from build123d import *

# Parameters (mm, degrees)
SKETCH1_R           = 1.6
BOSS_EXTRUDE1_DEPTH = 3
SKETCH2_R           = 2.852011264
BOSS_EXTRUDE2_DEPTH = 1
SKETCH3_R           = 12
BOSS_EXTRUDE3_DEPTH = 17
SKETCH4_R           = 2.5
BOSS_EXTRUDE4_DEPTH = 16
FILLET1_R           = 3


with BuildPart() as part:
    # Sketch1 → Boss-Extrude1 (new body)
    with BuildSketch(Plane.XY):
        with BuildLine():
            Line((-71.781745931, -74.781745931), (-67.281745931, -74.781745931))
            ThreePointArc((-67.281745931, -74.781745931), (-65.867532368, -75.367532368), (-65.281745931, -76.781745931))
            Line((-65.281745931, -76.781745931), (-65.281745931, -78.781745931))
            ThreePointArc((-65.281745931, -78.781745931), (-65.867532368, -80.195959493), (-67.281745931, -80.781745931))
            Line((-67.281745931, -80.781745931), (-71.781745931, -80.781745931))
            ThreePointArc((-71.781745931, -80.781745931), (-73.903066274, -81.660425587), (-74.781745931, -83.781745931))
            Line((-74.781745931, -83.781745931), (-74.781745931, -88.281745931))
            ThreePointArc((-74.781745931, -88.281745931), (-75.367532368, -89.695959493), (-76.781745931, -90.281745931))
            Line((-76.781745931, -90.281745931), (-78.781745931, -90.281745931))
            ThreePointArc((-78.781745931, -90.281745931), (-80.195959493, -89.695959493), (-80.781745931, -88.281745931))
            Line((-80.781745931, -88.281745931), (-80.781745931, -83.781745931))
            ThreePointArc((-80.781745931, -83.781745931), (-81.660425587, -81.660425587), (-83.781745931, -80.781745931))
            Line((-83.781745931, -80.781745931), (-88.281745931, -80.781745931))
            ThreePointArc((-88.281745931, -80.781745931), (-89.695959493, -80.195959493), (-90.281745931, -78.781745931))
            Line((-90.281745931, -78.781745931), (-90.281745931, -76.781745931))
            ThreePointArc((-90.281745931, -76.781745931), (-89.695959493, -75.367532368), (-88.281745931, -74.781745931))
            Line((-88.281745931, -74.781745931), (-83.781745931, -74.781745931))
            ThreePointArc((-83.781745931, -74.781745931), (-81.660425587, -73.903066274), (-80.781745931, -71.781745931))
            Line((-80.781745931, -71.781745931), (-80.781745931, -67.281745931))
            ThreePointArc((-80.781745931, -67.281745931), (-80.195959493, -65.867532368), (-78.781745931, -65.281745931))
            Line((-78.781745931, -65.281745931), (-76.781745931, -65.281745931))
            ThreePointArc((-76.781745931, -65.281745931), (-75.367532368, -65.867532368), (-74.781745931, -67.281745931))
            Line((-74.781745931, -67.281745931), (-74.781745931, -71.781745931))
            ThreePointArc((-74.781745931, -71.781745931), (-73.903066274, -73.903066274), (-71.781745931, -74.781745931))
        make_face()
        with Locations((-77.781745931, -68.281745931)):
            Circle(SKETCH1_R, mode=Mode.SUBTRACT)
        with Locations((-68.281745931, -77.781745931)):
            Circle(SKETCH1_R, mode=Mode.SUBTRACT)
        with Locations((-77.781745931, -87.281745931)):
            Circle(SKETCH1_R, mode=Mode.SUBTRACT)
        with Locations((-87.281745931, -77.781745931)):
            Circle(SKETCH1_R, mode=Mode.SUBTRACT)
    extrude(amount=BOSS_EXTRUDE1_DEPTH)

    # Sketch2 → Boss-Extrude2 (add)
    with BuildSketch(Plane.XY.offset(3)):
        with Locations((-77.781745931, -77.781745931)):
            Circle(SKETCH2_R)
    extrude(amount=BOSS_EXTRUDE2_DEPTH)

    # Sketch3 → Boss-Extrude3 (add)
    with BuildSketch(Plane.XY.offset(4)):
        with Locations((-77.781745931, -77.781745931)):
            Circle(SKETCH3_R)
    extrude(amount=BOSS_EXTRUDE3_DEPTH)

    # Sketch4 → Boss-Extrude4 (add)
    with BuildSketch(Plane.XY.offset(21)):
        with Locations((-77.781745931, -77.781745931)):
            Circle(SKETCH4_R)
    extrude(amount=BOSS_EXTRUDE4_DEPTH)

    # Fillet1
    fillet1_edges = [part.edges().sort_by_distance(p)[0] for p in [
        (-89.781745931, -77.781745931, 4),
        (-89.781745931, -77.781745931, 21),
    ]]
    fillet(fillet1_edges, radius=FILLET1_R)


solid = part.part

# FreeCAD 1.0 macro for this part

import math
import FreeCAD as App
import Part
import Sketcher
Q = App.Units.Quantity


def edges_at(feature, points):
    """Names of the edges that pass closest to the given points."""
    edges = feature.Shape.Edges
    near = lambda p: min(range(len(edges)), key=lambda i: edges[i].distToShape(Part.Vertex(*p))[0])
    return sorted({f"Edge{near(p) + 1}" for p in points})

doc = App.newDocument("Part")
params = doc.addObject("Spreadsheet::Sheet", "Params")
for row, (alias, value) in enumerate([
    ("sketch1_radius", "3 mm"),
    ("sketch1_radius2", "2 mm"),
    ("sketch1_diameter", "3.2 mm"),
    ("sketch1_width", "2 mm"),
    ("sketch1_width2", "4.5 mm"),
    ("pad1_length", "3 mm"),
    ("pad2_length", "1 mm"),
    ("sketch3_diameter", "24 mm"),
    ("pad3_length", "17 mm"),
    ("sketch4_diameter", "5 mm"),
    ("pad4_length", "16 mm"),
    ("fillet_radius", "3 mm"),
], start=1):
    params.set(f"A{row}", alias)
    params.set(f"B{row}", "=" + value)
    params.setAlias(f"B{row}", alias)

body = doc.addObject("PartDesign::Body", "Body")

sketch1 = body.newObject("Sketcher::SketchObject", "Sketch")
sketch1.AttachmentSupport = (doc.getObject("XY_Plane"), [""])
sketch1.MapMode = "FlatFace"
sketch1.addGeometry([
    Part.LineSegment(App.Vector(-67.3, -74.8, 0), App.Vector(-71.8, -74.8, 0)),
    Part.ArcOfCircle(Part.Circle(App.Vector(-71.8, -71.8, 0), App.Vector(0, 0, 1), 3), math.radians(-180), math.radians(-90)),
    Part.LineSegment(App.Vector(-74.8, -71.8, 0), App.Vector(-74.8, -67.3, 0)),
    Part.ArcOfCircle(Part.Circle(App.Vector(-76.8, -67.3, 0), App.Vector(0, 0, 1), 2), math.radians(0), math.radians(90)),
    Part.LineSegment(App.Vector(-76.8, -65.3, 0), App.Vector(-78.8, -65.3, 0)),
    Part.ArcOfCircle(Part.Circle(App.Vector(-78.8, -67.3, 0), App.Vector(0, 0, 1), 2), math.radians(90), math.radians(180)),
    Part.LineSegment(App.Vector(-80.8, -67.3, 0), App.Vector(-80.8, -71.8, 0)),
    Part.ArcOfCircle(Part.Circle(App.Vector(-83.8, -71.8, 0), App.Vector(0, 0, 1), 3), math.radians(-90), math.radians(0)),
    Part.LineSegment(App.Vector(-83.8, -74.8, 0), App.Vector(-88.3, -74.8, 0)),
    Part.ArcOfCircle(Part.Circle(App.Vector(-88.3, -76.8, 0), App.Vector(0, 0, 1), 2), math.radians(90), math.radians(180)),
    Part.LineSegment(App.Vector(-90.3, -76.8, 0), App.Vector(-90.3, -78.8, 0)),
    Part.ArcOfCircle(Part.Circle(App.Vector(-88.3, -78.8, 0), App.Vector(0, 0, 1), 2), math.radians(-180), math.radians(-90)),
    Part.LineSegment(App.Vector(-88.3, -80.8, 0), App.Vector(-83.8, -80.8, 0)),
    Part.ArcOfCircle(Part.Circle(App.Vector(-83.8, -83.8, 0), App.Vector(0, 0, 1), 3), math.radians(0), math.radians(90)),
    Part.LineSegment(App.Vector(-80.8, -83.8, 0), App.Vector(-80.8, -88.3, 0)),
    Part.ArcOfCircle(Part.Circle(App.Vector(-78.8, -88.3, 0), App.Vector(0, 0, 1), 2), math.radians(-180), math.radians(-90)),
    Part.LineSegment(App.Vector(-78.8, -90.3, 0), App.Vector(-76.8, -90.3, 0)),
    Part.ArcOfCircle(Part.Circle(App.Vector(-76.8, -88.3, 0), App.Vector(0, 0, 1), 2), math.radians(-90), math.radians(0)),
    Part.LineSegment(App.Vector(-74.8, -88.3, 0), App.Vector(-74.8, -83.8, 0)),
    Part.ArcOfCircle(Part.Circle(App.Vector(-71.8, -83.8, 0), App.Vector(0, 0, 1), 3), math.radians(90), math.radians(180)),
    Part.LineSegment(App.Vector(-71.8, -80.8, 0), App.Vector(-67.3, -80.8, 0)),
    Part.ArcOfCircle(Part.Circle(App.Vector(-67.3, -78.8, 0), App.Vector(0, 0, 1), 2), math.radians(-90), math.radians(0)),
    Part.LineSegment(App.Vector(-65.3, -78.8, 0), App.Vector(-65.3, -76.8, 0)),
    Part.ArcOfCircle(Part.Circle(App.Vector(-67.3, -76.8, 0), App.Vector(0, 0, 1), 2), math.radians(0), math.radians(90)),
    Part.Circle(App.Vector(-77.8, -87.3, 0), App.Vector(0, 0, 1), 1.6),
    Part.Circle(App.Vector(-68.3, -77.8, 0), App.Vector(0, 0, 1), 1.6),
    Part.Circle(App.Vector(-87.3, -77.8, 0), App.Vector(0, 0, 1), 1.6),
    Part.Circle(App.Vector(-77.8, -68.3, 0), App.Vector(0, 0, 1), 1.6),
], False)
sketch1.addConstraint([
    Sketcher.Constraint("Tangent", 0, 2, 1, 2),
    Sketcher.Constraint("Tangent", 1, 1, 2, 1),
    Sketcher.Constraint("Tangent", 2, 2, 3, 1),
    Sketcher.Constraint("Tangent", 3, 2, 4, 1),
    Sketcher.Constraint("Tangent", 4, 2, 5, 1),
    Sketcher.Constraint("Tangent", 5, 2, 6, 1),
    Sketcher.Constraint("Tangent", 6, 2, 7, 2),
    Sketcher.Constraint("Tangent", 7, 1, 8, 1),
    Sketcher.Constraint("Tangent", 8, 2, 9, 1),
    Sketcher.Constraint("Tangent", 9, 2, 10, 1),
    Sketcher.Constraint("Tangent", 10, 2, 11, 1),
    Sketcher.Constraint("Tangent", 11, 2, 12, 1),
    Sketcher.Constraint("Tangent", 12, 2, 13, 2),
    Sketcher.Constraint("Tangent", 13, 1, 14, 1),
    Sketcher.Constraint("Tangent", 14, 2, 15, 1),
    Sketcher.Constraint("Tangent", 15, 2, 16, 1),
    Sketcher.Constraint("Tangent", 16, 2, 17, 1),
    Sketcher.Constraint("Tangent", 17, 2, 18, 1),
    Sketcher.Constraint("Tangent", 18, 2, 19, 2),
    Sketcher.Constraint("Tangent", 19, 1, 20, 1),
    Sketcher.Constraint("Tangent", 20, 2, 21, 1),
    Sketcher.Constraint("Tangent", 21, 2, 22, 1),
    Sketcher.Constraint("Tangent", 22, 2, 23, 1),
    Sketcher.Constraint("Tangent", 23, 2, 0, 1),
    Sketcher.Constraint("Horizontal", 0),
    Sketcher.Constraint("Vertical", 2),
    Sketcher.Constraint("Horizontal", 4),
    Sketcher.Constraint("Vertical", 6),
    Sketcher.Constraint("Horizontal", 8),
    Sketcher.Constraint("Vertical", 10),
    Sketcher.Constraint("Horizontal", 12),
    Sketcher.Constraint("Vertical", 14),
    Sketcher.Constraint("Horizontal", 16),
    Sketcher.Constraint("Vertical", 18),
    Sketcher.Constraint("Horizontal", 20),
    Sketcher.Constraint("Vertical", 22),
    Sketcher.Constraint("Equal", 3, 5),
    Sketcher.Constraint("Equal", 1, 7),
    Sketcher.Constraint("Equal", 5, 9),
    Sketcher.Constraint("Equal", 9, 11),
    Sketcher.Constraint("Equal", 7, 13),
    Sketcher.Constraint("Equal", 11, 15),
    Sketcher.Constraint("Equal", 15, 17),
    Sketcher.Constraint("Equal", 13, 19),
    Sketcher.Constraint("Equal", 17, 21),
    Sketcher.Constraint("Equal", 21, 23),
    Sketcher.Constraint("Equal", 24, 25),
    Sketcher.Constraint("Equal", 25, 26),
    Sketcher.Constraint("Equal", 26, 27),
    Sketcher.Constraint("Horizontal", 1, 3, 7, 3),
    Sketcher.Constraint("Horizontal", 13, 3, 19, 3),
    Sketcher.Constraint("Horizontal", 25, 3, 26, 3),
    Sketcher.Constraint("Vertical", 7, 3, 13, 3),
    Sketcher.Constraint("Vertical", 3, 3, 17, 3),
    Sketcher.Constraint("Vertical", 24, 3, 27, 3),
    Sketcher.Constraint("Equal", 0, 8),
    Sketcher.Constraint("Equal", 20, 2),
    Sketcher.Constraint("Equal", 16, 10),
    Sketcher.Constraint("Equal", 6, 14),
    Sketcher.Constraint("Radius", 1, Q("3 mm")),
    Sketcher.Constraint("Radius", 3, Q("2 mm")),
    Sketcher.Constraint("Diameter", 24, Q("3.2 mm")),
    Sketcher.Constraint("DistanceX", 4, 2, 4, 1, Q("2 mm")),
    Sketcher.Constraint("DistanceX", 0, 2, 0, 1, Q("4.5 mm")),
    Sketcher.Constraint("DistanceX", 15, 3, 24, 3, Q("1 mm")),
    Sketcher.Constraint("DistanceY", 15, 3, 24, 3, Q("1 mm")),
    Sketcher.Constraint("DistanceX", 25, 3, 21, 3, Q("1 mm")),
    Sketcher.Constraint("DistanceY", 21, 3, 25, 3, Q("1 mm")),
    Sketcher.Constraint("DistanceX", 11, 3, 26, 3, Q("1 mm")),
    Sketcher.Constraint("DistanceY", 27, 3, 5, 3, Q("1 mm")),
    Sketcher.Constraint("DistanceX", 1, 3, -1, 1, Q("71.781746 mm")),
    Sketcher.Constraint("DistanceY", 1, 3, -1, 1, Q("71.781746 mm")),
])
sketch1.setExpression("Constraints[59]", "Params.sketch1_radius")
sketch1.setExpression("Constraints[60]", "Params.sketch1_radius2")
sketch1.setExpression("Constraints[61]", "Params.sketch1_diameter")
sketch1.setExpression("Constraints[62]", "Params.sketch1_width")
sketch1.setExpression("Constraints[63]", "Params.sketch1_width2")
pad1 = body.newObject("PartDesign::Pad", "Pad")
pad1.Profile = sketch1
pad1.setExpression("Length", "Params.pad1_length")

sketch2 = body.newObject("Sketcher::SketchObject", "Sketch001")
sketch2.AttachmentSupport = (doc.getObject("XY_Plane"), [""])
sketch2.MapMode = "FlatFace"
sketch2.AttachmentOffset = App.Placement(App.Vector(0, 0, 3), App.Rotation())
sketch2.addGeometry(Part.Circle(App.Vector(-77.8, -77.8, 0), App.Vector(0, 0, 1), 2.9), False)
sketch2.addConstraint([
    Sketcher.Constraint("Diameter", 0, Q("5.704023 mm")),
    Sketcher.Constraint("DistanceX", 0, 3, -1, 1, Q("77.781746 mm")),
    Sketcher.Constraint("DistanceY", 0, 3, -1, 1, Q("77.781746 mm")),
])
pad2 = body.newObject("PartDesign::Pad", "Pad001")
pad2.Profile = sketch2
pad2.setExpression("Length", "Params.pad2_length")

sketch3 = body.newObject("Sketcher::SketchObject", "Sketch002")
sketch3.AttachmentSupport = (doc.getObject("XY_Plane"), [""])
sketch3.MapMode = "FlatFace"
sketch3.AttachmentOffset = App.Placement(App.Vector(0, 0, 4), App.Rotation())
sketch3.addGeometry(Part.Circle(App.Vector(-78, -78, 0), App.Vector(0, 0, 1), 12), False)
sketch3.addConstraint([
    Sketcher.Constraint("Diameter", 0, Q("24 mm")),
    Sketcher.Constraint("DistanceX", 0, 3, -1, 1, Q("77.781746 mm")),
    Sketcher.Constraint("DistanceY", 0, 3, -1, 1, Q("77.781746 mm")),
])
sketch3.setExpression("Constraints[0]", "Params.sketch3_diameter")
pad3 = body.newObject("PartDesign::Pad", "Pad002")
pad3.Profile = sketch3
pad3.setExpression("Length", "Params.pad3_length")

sketch4 = body.newObject("Sketcher::SketchObject", "Sketch003")
sketch4.AttachmentSupport = (doc.getObject("XY_Plane"), [""])
sketch4.MapMode = "FlatFace"
sketch4.AttachmentOffset = App.Placement(App.Vector(0, 0, 21), App.Rotation())
sketch4.addGeometry(Part.Circle(App.Vector(-77.8, -77.8, 0), App.Vector(0, 0, 1), 2.5), False)
sketch4.addConstraint([
    Sketcher.Constraint("Diameter", 0, Q("5 mm")),
    Sketcher.Constraint("DistanceX", 0, 3, -1, 1, Q("77.781746 mm")),
    Sketcher.Constraint("DistanceY", 0, 3, -1, 1, Q("77.781746 mm")),
])
sketch4.setExpression("Constraints[0]", "Params.sketch4_diameter")
pad4 = body.newObject("PartDesign::Pad", "Pad003")
pad4.Profile = sketch4
pad4.setExpression("Length", "Params.pad4_length")
doc.recompute()

fillet = body.newObject("PartDesign::Fillet", "Fillet")
fillet.Base = (pad4, edges_at(pad4, [(-89.782, -77.782, 4), (-89.782, -77.782, 21)]))
fillet.setExpression("Radius", "Params.fillet_radius")

doc.recompute()
